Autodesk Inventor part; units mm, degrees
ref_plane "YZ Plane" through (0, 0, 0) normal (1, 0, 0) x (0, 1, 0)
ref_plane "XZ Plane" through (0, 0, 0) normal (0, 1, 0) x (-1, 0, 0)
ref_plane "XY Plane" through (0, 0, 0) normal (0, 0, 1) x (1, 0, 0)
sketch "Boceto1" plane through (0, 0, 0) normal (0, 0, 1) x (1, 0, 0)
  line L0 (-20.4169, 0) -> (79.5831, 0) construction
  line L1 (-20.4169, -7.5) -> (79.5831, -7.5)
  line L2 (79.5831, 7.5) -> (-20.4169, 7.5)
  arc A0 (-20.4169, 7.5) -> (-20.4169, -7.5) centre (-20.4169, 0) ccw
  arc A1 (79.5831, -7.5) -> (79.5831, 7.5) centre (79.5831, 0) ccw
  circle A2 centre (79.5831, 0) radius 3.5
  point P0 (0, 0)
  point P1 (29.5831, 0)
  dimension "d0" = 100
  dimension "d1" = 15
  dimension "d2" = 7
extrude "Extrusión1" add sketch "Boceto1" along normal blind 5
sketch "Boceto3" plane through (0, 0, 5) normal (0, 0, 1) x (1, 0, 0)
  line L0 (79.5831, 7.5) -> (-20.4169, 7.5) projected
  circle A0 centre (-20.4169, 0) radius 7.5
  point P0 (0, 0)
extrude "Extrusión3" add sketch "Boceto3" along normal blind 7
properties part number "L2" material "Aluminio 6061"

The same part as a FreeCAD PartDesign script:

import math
import FreeCAD as App
import Part
import Sketcher

V = App.Vector
Q = App.Units.Quantity

doc = App.newDocument("Part")
body = doc.addObject("PartDesign::Body", "Body")

sketch1 = body.newObject("Sketcher::SketchObject", "Sketch")
sketch1.AttachmentSupport = (doc.getObject("XY_Plane"), [""])
sketch1.MapMode = "FlatFace"
sketch1.addGeometry([
    Part.ArcOfCircle(Part.Circle(V(-20.4, 0, 0), V(0, 0, 1), 7.5), math.radians(90), math.radians(270)),
    Part.LineSegment(V(-20.4, -7.5, 0), V(79.6, -7.5, 0)),
    Part.ArcOfCircle(Part.Circle(V(79.6, 0, 0), V(0, 0, 1), 7.5), math.radians(-90), math.radians(90)),
    Part.LineSegment(V(79.6, 7.5, 0), V(-20.4, 7.5, 0)),
    Part.Circle(V(79.6, 0, 0), V(0, 0, 1), 3.5),
], False)
sketch1.addConstraint([
    Sketcher.Constraint("Tangent", 0, 2, 1, 1),
    Sketcher.Constraint("Tangent", 1, 2, 2, 1),
    Sketcher.Constraint("Tangent", 2, 2, 3, 1),
    Sketcher.Constraint("Tangent", 3, 2, 0, 1),
    Sketcher.Constraint("Horizontal", 1),
    Sketcher.Constraint("Horizontal", 3),
    Sketcher.Constraint("Coincident", 4, 3, 2, 3),
    Sketcher.Constraint("PointOnObject", 0, 3, -1),
    Sketcher.Constraint("Diameter", 4, Q("7 mm")),
    Sketcher.Constraint("Radius", 0, Q("7.5 mm")),
    Sketcher.Constraint("DistanceX", 1, 1, 1, 2, Q("100 mm")),
    Sketcher.Constraint("DistanceX", 0, 3, -1, 1, Q("20.417 mm")),
])
pad1 = body.newObject("PartDesign::Pad", "Pad")
pad1.Profile = sketch1
pad1.Length = 5

sketch2 = body.newObject("Sketcher::SketchObject", "Sketch001")
sketch2.AttachmentSupport = (doc.getObject("XY_Plane"), [""])
sketch2.MapMode = "FlatFace"
sketch2.AttachmentOffset = App.Placement(V(0, 0, 5), App.Rotation())
sketch2.addGeometry(Part.Circle(V(-20, 0, 0), V(0, 0, 1), 8), False)
sketch2.addConstraint([
    Sketcher.Constraint("PointOnObject", 0, 3, -1),
    Sketcher.Constraint("Diameter", 0, Q("15 mm")),
    Sketcher.Constraint("DistanceX", 0, 3, -1, 1, Q("20.417 mm")),
])
pad2 = body.newObject("PartDesign::Pad", "Pad001")
pad2.Profile = sketch2
pad2.Length = 7

doc.recompute()
